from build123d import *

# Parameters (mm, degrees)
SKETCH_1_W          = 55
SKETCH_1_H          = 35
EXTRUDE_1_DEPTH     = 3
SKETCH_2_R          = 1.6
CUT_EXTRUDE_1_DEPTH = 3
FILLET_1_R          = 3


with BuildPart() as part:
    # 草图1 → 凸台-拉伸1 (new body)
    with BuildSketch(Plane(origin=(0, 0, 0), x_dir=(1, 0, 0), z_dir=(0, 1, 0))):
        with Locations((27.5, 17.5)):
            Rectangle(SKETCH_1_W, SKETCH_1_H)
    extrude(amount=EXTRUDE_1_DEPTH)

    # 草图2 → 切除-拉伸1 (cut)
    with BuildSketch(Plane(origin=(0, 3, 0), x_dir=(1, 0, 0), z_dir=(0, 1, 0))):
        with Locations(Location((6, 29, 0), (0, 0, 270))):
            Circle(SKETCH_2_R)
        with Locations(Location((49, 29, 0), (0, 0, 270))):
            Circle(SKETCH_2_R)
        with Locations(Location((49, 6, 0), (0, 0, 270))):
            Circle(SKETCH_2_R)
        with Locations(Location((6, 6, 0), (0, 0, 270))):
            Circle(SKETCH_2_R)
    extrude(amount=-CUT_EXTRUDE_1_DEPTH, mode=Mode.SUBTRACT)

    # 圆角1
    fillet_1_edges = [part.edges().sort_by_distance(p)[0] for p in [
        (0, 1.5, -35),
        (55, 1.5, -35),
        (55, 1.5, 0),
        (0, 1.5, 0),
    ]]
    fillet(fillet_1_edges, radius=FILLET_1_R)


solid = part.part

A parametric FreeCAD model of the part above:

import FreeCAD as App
import Part
import Sketcher
from FreeCAD import Vector
Q = App.Units.Quantity


def edges_at(feature, points):
    """Names of the edges that pass closest to the given points."""
    edges = feature.Shape.Edges
    near = lambda p: min(range(len(edges)), key=lambda i: edges[i].distToShape(Part.Vertex(*p))[0])
    return sorted({f"Edge{near(p) + 1}" for p in points})


def add_polygon(sketch, points):
    """Adds a closed chain of lines whose ends are joined by coincident constraints."""
    first, n = sketch.GeometryCount, len(points)
    for a, b in zip(points, points[1:] + points[:1]):
        sketch.addGeometry(Part.LineSegment(App.Vector(*a, 0), App.Vector(*b, 0)), False)
    for i in range(n):
        sketch.addConstraint(Sketcher.Constraint("Coincident", first + i, 2, first + (i + 1) % n, 1))

doc = App.newDocument("Part")
params = doc.addObject("Spreadsheet::Sheet", "Params")
for row, (alias, value) in enumerate([
    ("sketch1_width", "55 mm"),
    ("sketch1_height", "35 mm"),
    ("pad1_length", "3 mm"),
    ("sketch2_diameter", "3.2 mm"),
    ("pocket1_length", "3 mm"),
    ("fillet_radius", "3 mm"),
], start=1):
    params.set(f"A{row}", alias)
    params.set(f"B{row}", "=" + value)
    params.setAlias(f"B{row}", alias)

body = doc.addObject("PartDesign::Body", "Body")

sketch1 = doc.addObject("Sketcher::SketchObject", "Sketch")
body.addObject(sketch1)
sketch1.AttachmentSupport = (doc.XZ_Plane, [""])
sketch1.MapMode = "FlatFace"
add_polygon(sketch1, [(0, -35), (0, 0), (55, 0), (55, -35)])
sketch1.addConstraint([
    Sketcher.Constraint("Vertical", 0),
    Sketcher.Constraint("Horizontal", 1),
    Sketcher.Constraint("Vertical", 2),
    Sketcher.Constraint("Horizontal", 3),
    Sketcher.Constraint("Coincident", 0, 2, -1, 1),
    Sketcher.Constraint("DistanceX", 1, 1, 1, 2, Q("55 mm")),
    Sketcher.Constraint("DistanceY", 0, 1, 0, 2, Q("35 mm")),
])
sketch1.setExpression("Constraints[9]", "Params.sketch1_width")
sketch1.setExpression("Constraints[10]", "Params.sketch1_height")
pad1 = doc.addObject("PartDesign::Pad", "Pad")
body.addObject(pad1)
pad1.Profile = sketch1
pad1.setExpression("Length", "Params.pad1_length")
pad1.Reversed = True

sketch2 = doc.addObject("Sketcher::SketchObject", "Sketch001")
body.addObject(sketch2)
sketch2.AttachmentSupport = (doc.XZ_Plane, [""])
sketch2.MapMode = "FlatFace"
sketch2.AttachmentOffset = App.Placement(Vector(0, 0, -3), App.Rotation())
sketch2.addGeometry([
    Part.Circle(Vector(6, -29, 0), Vector(0, 0, 1), 1.6),
    Part.Circle(Vector(49, -29, 0), Vector(0, 0, 1), 1.6),
    Part.Circle(Vector(49, -6, 0), Vector(0, 0, 1), 1.6),
    Part.Circle(Vector(6, -6, 0), Vector(0, 0, 1), 1.6),
], False)
sketch2.addConstraint([
    Sketcher.Constraint("Equal", 0, 1),
    Sketcher.Constraint("Equal", 1, 2),
    Sketcher.Constraint("Equal", 2, 3),
    Sketcher.Constraint("Horizontal", 0, 3, 1, 3),
    Sketcher.Constraint("Horizontal", 2, 3, 3, 3),
    Sketcher.Constraint("Vertical", 1, 3, 2, 3),
    Sketcher.Constraint("Vertical", 0, 3, 3, 3),
    Sketcher.Constraint("Diameter", 0, Q("3.2 mm")),
    Sketcher.Constraint("DistanceX", -1, 1, 0, 3, Q("6 mm")),
    Sketcher.Constraint("DistanceY", 0, 3, -1, 1, Q("29 mm")),
    Sketcher.Constraint("DistanceX", -1, 1, 1, 3, Q("49 mm")),
    Sketcher.Constraint("DistanceY", 2, 3, -1, 1, Q("6 mm")),
])
sketch2.setExpression("Constraints[7]", "Params.sketch2_diameter")
pocket1 = doc.addObject("PartDesign::Pocket", "Pocket")
body.addObject(pocket1)
pocket1.Profile = sketch2
pocket1.setExpression("Length", "Params.pocket1_length")
pocket1.Reversed = True
doc.recompute()

fillet = doc.addObject("PartDesign::Fillet", "Fillet")
body.addObject(fillet)
fillet.Base = (pocket1, edges_at(pocket1, [
    (0, 1.5, -35),
    (55, 1.5, -35),
    (55, 1.5, 0),
    (0, 1.5, 0),
]))
fillet.setExpression("Radius", "Params.fillet_radius")

doc.recompute()
